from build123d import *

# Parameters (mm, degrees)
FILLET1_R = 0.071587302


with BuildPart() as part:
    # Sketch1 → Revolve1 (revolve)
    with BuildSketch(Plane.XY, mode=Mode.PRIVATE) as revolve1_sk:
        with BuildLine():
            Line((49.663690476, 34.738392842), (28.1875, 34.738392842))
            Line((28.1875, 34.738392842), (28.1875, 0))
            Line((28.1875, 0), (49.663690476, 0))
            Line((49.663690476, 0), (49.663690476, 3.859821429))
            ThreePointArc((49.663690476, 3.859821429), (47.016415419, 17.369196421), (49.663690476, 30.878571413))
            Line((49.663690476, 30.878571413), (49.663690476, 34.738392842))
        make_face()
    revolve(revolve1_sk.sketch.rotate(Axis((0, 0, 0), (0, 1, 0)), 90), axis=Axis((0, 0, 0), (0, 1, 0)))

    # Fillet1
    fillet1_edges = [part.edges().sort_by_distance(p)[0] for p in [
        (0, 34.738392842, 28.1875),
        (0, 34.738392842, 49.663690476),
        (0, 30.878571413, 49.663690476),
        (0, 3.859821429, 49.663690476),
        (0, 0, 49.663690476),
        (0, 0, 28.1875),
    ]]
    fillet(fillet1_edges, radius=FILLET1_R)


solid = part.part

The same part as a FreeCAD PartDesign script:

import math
import FreeCAD as App
import Part
import Sketcher

V = App.Vector


def edges_at(feature, points):
    """Names of the edges that pass closest to the given points."""
    edges = feature.Shape.Edges
    near = lambda p: min(range(len(edges)), key=lambda i: edges[i].distToShape(Part.Vertex(*p))[0])
    return sorted({f"Edge{near(p) + 1}" for p in points})

doc = App.newDocument("Part")
body = doc.addObject("PartDesign::Body", "Body")

sketch1 = body.newObject("Sketcher::SketchObject", "Sketch")
sketch1.AttachmentSupport = (doc.getObject("XY_Plane"), [""])
sketch1.MapMode = "FlatFace"
sketch1.addGeometry(Part.LineSegment(V(49.7, 34.7, 0), V(28.2, 34.7, 0)), False)
sketch1.addGeometry(Part.LineSegment(V(28.2, 34.7, 0), V(28.2, 0, 0)), False)
sketch1.addGeometry(Part.LineSegment(V(28.2, 0, 0), V(49.7, 0, 0)), False)
sketch1.addGeometry(Part.LineSegment(V(49.7, 0, 0), V(49.7, 3.9, 0)), False)
sketch1.addGeometry(Part.ArcOfCircle(Part.Circle(V(82.8, 17.4, 0), V(0, 0, 1), 35.8), math.radians(158), math.radians(202)), False)
sketch1.addGeometry(Part.LineSegment(V(49.7, 30.9, 0), V(49.7, 34.7, 0)), False)
sketch1.addConstraint(Sketcher.Constraint("Coincident", 0, 2, 1, 1))
sketch1.addConstraint(Sketcher.Constraint("Coincident", 1, 2, 2, 1))
sketch1.addConstraint(Sketcher.Constraint("Coincident", 2, 2, 3, 1))
sketch1.addConstraint(Sketcher.Constraint("Coincident", 3, 2, 4, 2))
sketch1.addConstraint(Sketcher.Constraint("Coincident", 4, 1, 5, 1))
sketch1.addConstraint(Sketcher.Constraint("Coincident", 5, 2, 0, 1))
sketch1.addConstraint(Sketcher.Constraint("Horizontal", 0))
sketch1.addConstraint(Sketcher.Constraint("Vertical", 1))
sketch1.addConstraint(Sketcher.Constraint("Horizontal", 2))
sketch1.addConstraint(Sketcher.Constraint("Vertical", 3))
sketch1.addConstraint(Sketcher.Constraint("Vertical", 5))
sketch1.addConstraint(Sketcher.Constraint("PointOnObject", 1, 2, -1))
sketch1.addConstraint(Sketcher.Constraint("Vertical", 3, 2, 4, 1))
sketch1.addConstraint(Sketcher.Constraint("Equal", 3, 5))
sketch1.addConstraint(Sketcher.Constraint("Radius", 4, 35.793651))
sketch1.addConstraint(Sketcher.Constraint("DistanceX", 0, 2, 0, 1, 21.47619))
sketch1.addConstraint(Sketcher.Constraint("DistanceY", 3, 1, 3, 2, 3.859821))
sketch1.addConstraint(Sketcher.Constraint("DistanceX", -1, 1, 0, 2, 28.1875))
sketch1.addConstraint(Sketcher.Constraint("DistanceY", 1, 2, 1, 1, 34.738393))
revolution = body.newObject("PartDesign::Revolution", "Revolution")
revolution.Profile = sketch1
revolution.ReferenceAxis = (sketch1, ["V_Axis"])
revolution.Angle = 360
doc.recompute()

fillet = body.newObject("PartDesign::Fillet", "Fillet")
fillet.Base = (revolution, edges_at(revolution, [
    (0, 34.738, 28.188),
    (0, 34.738, 49.664),
    (0, 30.879, 49.664),
    (0, 3.86, 49.664),
    (0, 0, 49.664),
    (0, 0, 28.188),
]))
fillet.Radius = 0.071587

doc.recompute()
